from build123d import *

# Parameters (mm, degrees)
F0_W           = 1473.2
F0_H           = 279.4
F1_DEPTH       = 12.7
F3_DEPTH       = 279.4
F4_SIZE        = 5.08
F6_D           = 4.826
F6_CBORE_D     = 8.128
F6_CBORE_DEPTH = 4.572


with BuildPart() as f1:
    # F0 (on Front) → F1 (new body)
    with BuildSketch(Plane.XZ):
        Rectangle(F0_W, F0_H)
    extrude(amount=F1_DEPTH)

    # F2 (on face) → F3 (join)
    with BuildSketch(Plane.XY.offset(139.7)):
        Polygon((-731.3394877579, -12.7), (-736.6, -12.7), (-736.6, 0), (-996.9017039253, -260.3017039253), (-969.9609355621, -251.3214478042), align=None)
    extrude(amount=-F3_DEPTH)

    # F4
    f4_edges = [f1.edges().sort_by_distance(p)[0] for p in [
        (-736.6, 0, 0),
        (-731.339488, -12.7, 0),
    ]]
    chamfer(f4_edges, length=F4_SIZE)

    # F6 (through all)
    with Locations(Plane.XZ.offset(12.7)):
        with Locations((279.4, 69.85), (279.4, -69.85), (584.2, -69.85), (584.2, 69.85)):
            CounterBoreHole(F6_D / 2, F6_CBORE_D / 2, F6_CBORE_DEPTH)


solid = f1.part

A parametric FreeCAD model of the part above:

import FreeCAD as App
import Part
import Sketcher

V = App.Vector
Q = App.Units.Quantity


def edges_at(feature, points):
    """Names of the edges that pass closest to the given points."""
    edges = feature.Shape.Edges
    near = lambda p: min(range(len(edges)), key=lambda i: edges[i].distToShape(Part.Vertex(*p))[0])
    return sorted({f"Edge{near(p) + 1}" for p in points})

doc = App.newDocument("Part")
params = doc.addObject("Spreadsheet::Sheet", "Params")
for row, (alias, value) in enumerate([
    ("sketch1_width", "58 in"),
    ("sketch1_height", "11 in"),
    ("pad1_length", "0.5 in"),
    ("sketch2_height", "0.5 in"),
    ("sketch2_length", "14.493 in"),
    ("pad2_length", "11 in"),
    ("chamfer_size", "0.2 in"),
    ("sketch3_diameter", "0.19 in"),
    ("hole_diameter", "0.19 in"),
    ("hole_cbore_diameter", "0.32 in"),
    ("hole_cbore_depth", "0.18 in"),
], start=1):
    params.set(f"A{row}", alias)
    params.set(f"B{row}", "=" + value)
    params.setAlias(f"B{row}", alias)

body = doc.addObject("PartDesign::Body", "Body")

sketch1 = body.newObject("Sketcher::SketchObject", "Sketch")
sketch1.AttachmentSupport = (doc.getObject("XZ_Plane"), [""])
sketch1.MapMode = "FlatFace"
sketch1.addGeometry([
    Part.LineSegment(V(-736.6, 139.7, 0), V(-736.6, -139.7, 0)),
    Part.LineSegment(V(-736.6, -139.7, 0), V(736.6, -139.7, 0)),
    Part.LineSegment(V(736.6, -139.7, 0), V(736.6, 139.7, 0)),
    Part.LineSegment(V(736.6, 139.7, 0), V(-736.6, 139.7, 0)),
], False)
sketch1.addConstraint([
    Sketcher.Constraint("Coincident", 0, 2, 1, 1),
    Sketcher.Constraint("Coincident", 1, 2, 2, 1),
    Sketcher.Constraint("Coincident", 2, 2, 3, 1),
    Sketcher.Constraint("Coincident", 3, 2, 0, 1),
    Sketcher.Constraint("Vertical", 0),
    Sketcher.Constraint("Horizontal", 1),
    Sketcher.Constraint("Vertical", 2),
    Sketcher.Constraint("Horizontal", 3),
    Sketcher.Constraint("Symmetric", 0, 2, 2, 2, -1, 1),
    Sketcher.Constraint("DistanceX", 1, 1, 1, 2, Q("58 in")),
    Sketcher.Constraint("DistanceY", 0, 2, 0, 1, Q("11 in")),
])
sketch1.setExpression("Constraints[9]", "Params.sketch1_width")
sketch1.setExpression("Constraints[10]", "Params.sketch1_height")
pad1 = body.newObject("PartDesign::Pad", "Pad")
pad1.Profile = sketch1
pad1.setExpression("Length", "Params.pad1_length")

sketch2 = body.newObject("Sketcher::SketchObject", "Sketch001")
sketch2.AttachmentSupport = (doc.getObject("XY_Plane"), [""])
sketch2.MapMode = "FlatFace"
sketch2.AttachmentOffset = App.Placement(V(0, 0, 5.5 * 25.4), App.Rotation())
sketch2.addGeometry([
    Part.LineSegment(V(-731.339488, -12.7, 0), V(-736.6, -12.7, 0)),
    Part.LineSegment(V(-736.6, -12.7, 0), V(-736.6, 0, 0)),
    Part.LineSegment(V(-736.6, 0, 0), V(-996.901704, -260.301704, 0)),
    Part.LineSegment(V(-996.901704, -260.301704, 0), V(-969.960936, -251.321448, 0)),
    Part.LineSegment(V(-969.960936, -251.321448, 0), V(-731.339488, -12.7, 0)),
], False)
sketch2.addConstraint([
    Sketcher.Constraint("Coincident", 0, 2, 1, 1),
    Sketcher.Constraint("Coincident", 1, 2, 2, 1),
    Sketcher.Constraint("Coincident", 2, 2, 3, 1),
    Sketcher.Constraint("Coincident", 3, 2, 4, 1),
    Sketcher.Constraint("Coincident", 4, 2, 0, 1),
    Sketcher.Constraint("Horizontal", 0),
    Sketcher.Constraint("Vertical", 1),
    Sketcher.Constraint("PointOnObject", 1, 2, -1),
    Sketcher.Constraint("Parallel", 2, 4),
    Sketcher.Constraint("DistanceY", 1, 1, 1, 2, Q("0.5 in")),
    Sketcher.Constraint("DistanceX", 0, 2, -1, 1, Q("29 in")),
    Sketcher.Constraint("Angle", 2, Q("-135 deg")),
    Sketcher.Constraint("Distance", 2, Q("14.493 in")),
    Sketcher.Constraint("DistanceX", 0, 2, 0, 1, Q("5.260512 mm")),
    Sketcher.Constraint("DistanceX", 2, 2, 3, 2, Q("26.940768 mm")),
])
sketch2.setExpression("Constraints[9]", "Params.sketch2_height")
sketch2.setExpression("Constraints[12]", "Params.sketch2_length")
pad2 = body.newObject("PartDesign::Pad", "Pad001")
pad2.Profile = sketch2
pad2.setExpression("Length", "Params.pad2_length")
pad2.Reversed = True
doc.recompute()

chamfer = body.newObject("PartDesign::Chamfer", "Chamfer")
chamfer.Base = (pad2, edges_at(pad2, [(-736.6, 0, 0), (-731.339, -12.7, 0)]))
chamfer.setExpression("Size", "Params.chamfer_size")

sketch3 = body.newObject("Sketcher::SketchObject", "Sketch002")
sketch3.AttachmentSupport = (doc.getObject("XZ_Plane"), [""])
sketch3.MapMode = "FlatFace"
sketch3.AttachmentOffset = App.Placement(V(0, 0, 0.5 * 25.4), App.Rotation())
sketch3.addGeometry([
    Part.Circle(V(279.4, 69.85, 0), V(0, 0, 1), 2.413),
    Part.Circle(V(279.4, -69.85, 0), V(0, 0, 1), 2.413),
    Part.Circle(V(584.2, -69.85, 0), V(0, 0, 1), 2.413),
    Part.Circle(V(584.2, 69.85, 0), V(0, 0, 1), 2.413),
], False)
sketch3.addConstraint([
    Sketcher.Constraint("Equal", 0, 1),
    Sketcher.Constraint("Equal", 1, 2),
    Sketcher.Constraint("Equal", 2, 3),
    Sketcher.Constraint("Symmetric", 0, 3, 1, 3, -1),
    Sketcher.Constraint("Symmetric", 2, 3, 3, 3, -1),
    Sketcher.Constraint("Horizontal", 1, 3, 2, 3),
    Sketcher.Constraint("Diameter", 0, Q("0.19 in")),
    Sketcher.Constraint("DistanceX", -1, 1, 0, 3, Q("11 in")),
    Sketcher.Constraint("DistanceX", -1, 1, 2, 3, Q("23 in")),
    Sketcher.Constraint("DistanceY", 1, 3, 0, 3, Q("5.5 in")),
])
sketch3.setExpression("Constraints[6]", "Params.sketch3_diameter")
doc.recompute()
hole = body.newObject("PartDesign::Hole", "Hole")
hole.Profile = sketch3
hole.ThreadType = "None"
hole.setExpression("Diameter", "Params.hole_diameter")
hole.DepthType = "ThroughAll"
hole.HoleCutType = "Counterbore"
hole.setExpression("HoleCutDiameter", "Params.hole_cbore_diameter")
hole.setExpression("HoleCutDepth", "Params.hole_cbore_depth")

doc.recompute()
